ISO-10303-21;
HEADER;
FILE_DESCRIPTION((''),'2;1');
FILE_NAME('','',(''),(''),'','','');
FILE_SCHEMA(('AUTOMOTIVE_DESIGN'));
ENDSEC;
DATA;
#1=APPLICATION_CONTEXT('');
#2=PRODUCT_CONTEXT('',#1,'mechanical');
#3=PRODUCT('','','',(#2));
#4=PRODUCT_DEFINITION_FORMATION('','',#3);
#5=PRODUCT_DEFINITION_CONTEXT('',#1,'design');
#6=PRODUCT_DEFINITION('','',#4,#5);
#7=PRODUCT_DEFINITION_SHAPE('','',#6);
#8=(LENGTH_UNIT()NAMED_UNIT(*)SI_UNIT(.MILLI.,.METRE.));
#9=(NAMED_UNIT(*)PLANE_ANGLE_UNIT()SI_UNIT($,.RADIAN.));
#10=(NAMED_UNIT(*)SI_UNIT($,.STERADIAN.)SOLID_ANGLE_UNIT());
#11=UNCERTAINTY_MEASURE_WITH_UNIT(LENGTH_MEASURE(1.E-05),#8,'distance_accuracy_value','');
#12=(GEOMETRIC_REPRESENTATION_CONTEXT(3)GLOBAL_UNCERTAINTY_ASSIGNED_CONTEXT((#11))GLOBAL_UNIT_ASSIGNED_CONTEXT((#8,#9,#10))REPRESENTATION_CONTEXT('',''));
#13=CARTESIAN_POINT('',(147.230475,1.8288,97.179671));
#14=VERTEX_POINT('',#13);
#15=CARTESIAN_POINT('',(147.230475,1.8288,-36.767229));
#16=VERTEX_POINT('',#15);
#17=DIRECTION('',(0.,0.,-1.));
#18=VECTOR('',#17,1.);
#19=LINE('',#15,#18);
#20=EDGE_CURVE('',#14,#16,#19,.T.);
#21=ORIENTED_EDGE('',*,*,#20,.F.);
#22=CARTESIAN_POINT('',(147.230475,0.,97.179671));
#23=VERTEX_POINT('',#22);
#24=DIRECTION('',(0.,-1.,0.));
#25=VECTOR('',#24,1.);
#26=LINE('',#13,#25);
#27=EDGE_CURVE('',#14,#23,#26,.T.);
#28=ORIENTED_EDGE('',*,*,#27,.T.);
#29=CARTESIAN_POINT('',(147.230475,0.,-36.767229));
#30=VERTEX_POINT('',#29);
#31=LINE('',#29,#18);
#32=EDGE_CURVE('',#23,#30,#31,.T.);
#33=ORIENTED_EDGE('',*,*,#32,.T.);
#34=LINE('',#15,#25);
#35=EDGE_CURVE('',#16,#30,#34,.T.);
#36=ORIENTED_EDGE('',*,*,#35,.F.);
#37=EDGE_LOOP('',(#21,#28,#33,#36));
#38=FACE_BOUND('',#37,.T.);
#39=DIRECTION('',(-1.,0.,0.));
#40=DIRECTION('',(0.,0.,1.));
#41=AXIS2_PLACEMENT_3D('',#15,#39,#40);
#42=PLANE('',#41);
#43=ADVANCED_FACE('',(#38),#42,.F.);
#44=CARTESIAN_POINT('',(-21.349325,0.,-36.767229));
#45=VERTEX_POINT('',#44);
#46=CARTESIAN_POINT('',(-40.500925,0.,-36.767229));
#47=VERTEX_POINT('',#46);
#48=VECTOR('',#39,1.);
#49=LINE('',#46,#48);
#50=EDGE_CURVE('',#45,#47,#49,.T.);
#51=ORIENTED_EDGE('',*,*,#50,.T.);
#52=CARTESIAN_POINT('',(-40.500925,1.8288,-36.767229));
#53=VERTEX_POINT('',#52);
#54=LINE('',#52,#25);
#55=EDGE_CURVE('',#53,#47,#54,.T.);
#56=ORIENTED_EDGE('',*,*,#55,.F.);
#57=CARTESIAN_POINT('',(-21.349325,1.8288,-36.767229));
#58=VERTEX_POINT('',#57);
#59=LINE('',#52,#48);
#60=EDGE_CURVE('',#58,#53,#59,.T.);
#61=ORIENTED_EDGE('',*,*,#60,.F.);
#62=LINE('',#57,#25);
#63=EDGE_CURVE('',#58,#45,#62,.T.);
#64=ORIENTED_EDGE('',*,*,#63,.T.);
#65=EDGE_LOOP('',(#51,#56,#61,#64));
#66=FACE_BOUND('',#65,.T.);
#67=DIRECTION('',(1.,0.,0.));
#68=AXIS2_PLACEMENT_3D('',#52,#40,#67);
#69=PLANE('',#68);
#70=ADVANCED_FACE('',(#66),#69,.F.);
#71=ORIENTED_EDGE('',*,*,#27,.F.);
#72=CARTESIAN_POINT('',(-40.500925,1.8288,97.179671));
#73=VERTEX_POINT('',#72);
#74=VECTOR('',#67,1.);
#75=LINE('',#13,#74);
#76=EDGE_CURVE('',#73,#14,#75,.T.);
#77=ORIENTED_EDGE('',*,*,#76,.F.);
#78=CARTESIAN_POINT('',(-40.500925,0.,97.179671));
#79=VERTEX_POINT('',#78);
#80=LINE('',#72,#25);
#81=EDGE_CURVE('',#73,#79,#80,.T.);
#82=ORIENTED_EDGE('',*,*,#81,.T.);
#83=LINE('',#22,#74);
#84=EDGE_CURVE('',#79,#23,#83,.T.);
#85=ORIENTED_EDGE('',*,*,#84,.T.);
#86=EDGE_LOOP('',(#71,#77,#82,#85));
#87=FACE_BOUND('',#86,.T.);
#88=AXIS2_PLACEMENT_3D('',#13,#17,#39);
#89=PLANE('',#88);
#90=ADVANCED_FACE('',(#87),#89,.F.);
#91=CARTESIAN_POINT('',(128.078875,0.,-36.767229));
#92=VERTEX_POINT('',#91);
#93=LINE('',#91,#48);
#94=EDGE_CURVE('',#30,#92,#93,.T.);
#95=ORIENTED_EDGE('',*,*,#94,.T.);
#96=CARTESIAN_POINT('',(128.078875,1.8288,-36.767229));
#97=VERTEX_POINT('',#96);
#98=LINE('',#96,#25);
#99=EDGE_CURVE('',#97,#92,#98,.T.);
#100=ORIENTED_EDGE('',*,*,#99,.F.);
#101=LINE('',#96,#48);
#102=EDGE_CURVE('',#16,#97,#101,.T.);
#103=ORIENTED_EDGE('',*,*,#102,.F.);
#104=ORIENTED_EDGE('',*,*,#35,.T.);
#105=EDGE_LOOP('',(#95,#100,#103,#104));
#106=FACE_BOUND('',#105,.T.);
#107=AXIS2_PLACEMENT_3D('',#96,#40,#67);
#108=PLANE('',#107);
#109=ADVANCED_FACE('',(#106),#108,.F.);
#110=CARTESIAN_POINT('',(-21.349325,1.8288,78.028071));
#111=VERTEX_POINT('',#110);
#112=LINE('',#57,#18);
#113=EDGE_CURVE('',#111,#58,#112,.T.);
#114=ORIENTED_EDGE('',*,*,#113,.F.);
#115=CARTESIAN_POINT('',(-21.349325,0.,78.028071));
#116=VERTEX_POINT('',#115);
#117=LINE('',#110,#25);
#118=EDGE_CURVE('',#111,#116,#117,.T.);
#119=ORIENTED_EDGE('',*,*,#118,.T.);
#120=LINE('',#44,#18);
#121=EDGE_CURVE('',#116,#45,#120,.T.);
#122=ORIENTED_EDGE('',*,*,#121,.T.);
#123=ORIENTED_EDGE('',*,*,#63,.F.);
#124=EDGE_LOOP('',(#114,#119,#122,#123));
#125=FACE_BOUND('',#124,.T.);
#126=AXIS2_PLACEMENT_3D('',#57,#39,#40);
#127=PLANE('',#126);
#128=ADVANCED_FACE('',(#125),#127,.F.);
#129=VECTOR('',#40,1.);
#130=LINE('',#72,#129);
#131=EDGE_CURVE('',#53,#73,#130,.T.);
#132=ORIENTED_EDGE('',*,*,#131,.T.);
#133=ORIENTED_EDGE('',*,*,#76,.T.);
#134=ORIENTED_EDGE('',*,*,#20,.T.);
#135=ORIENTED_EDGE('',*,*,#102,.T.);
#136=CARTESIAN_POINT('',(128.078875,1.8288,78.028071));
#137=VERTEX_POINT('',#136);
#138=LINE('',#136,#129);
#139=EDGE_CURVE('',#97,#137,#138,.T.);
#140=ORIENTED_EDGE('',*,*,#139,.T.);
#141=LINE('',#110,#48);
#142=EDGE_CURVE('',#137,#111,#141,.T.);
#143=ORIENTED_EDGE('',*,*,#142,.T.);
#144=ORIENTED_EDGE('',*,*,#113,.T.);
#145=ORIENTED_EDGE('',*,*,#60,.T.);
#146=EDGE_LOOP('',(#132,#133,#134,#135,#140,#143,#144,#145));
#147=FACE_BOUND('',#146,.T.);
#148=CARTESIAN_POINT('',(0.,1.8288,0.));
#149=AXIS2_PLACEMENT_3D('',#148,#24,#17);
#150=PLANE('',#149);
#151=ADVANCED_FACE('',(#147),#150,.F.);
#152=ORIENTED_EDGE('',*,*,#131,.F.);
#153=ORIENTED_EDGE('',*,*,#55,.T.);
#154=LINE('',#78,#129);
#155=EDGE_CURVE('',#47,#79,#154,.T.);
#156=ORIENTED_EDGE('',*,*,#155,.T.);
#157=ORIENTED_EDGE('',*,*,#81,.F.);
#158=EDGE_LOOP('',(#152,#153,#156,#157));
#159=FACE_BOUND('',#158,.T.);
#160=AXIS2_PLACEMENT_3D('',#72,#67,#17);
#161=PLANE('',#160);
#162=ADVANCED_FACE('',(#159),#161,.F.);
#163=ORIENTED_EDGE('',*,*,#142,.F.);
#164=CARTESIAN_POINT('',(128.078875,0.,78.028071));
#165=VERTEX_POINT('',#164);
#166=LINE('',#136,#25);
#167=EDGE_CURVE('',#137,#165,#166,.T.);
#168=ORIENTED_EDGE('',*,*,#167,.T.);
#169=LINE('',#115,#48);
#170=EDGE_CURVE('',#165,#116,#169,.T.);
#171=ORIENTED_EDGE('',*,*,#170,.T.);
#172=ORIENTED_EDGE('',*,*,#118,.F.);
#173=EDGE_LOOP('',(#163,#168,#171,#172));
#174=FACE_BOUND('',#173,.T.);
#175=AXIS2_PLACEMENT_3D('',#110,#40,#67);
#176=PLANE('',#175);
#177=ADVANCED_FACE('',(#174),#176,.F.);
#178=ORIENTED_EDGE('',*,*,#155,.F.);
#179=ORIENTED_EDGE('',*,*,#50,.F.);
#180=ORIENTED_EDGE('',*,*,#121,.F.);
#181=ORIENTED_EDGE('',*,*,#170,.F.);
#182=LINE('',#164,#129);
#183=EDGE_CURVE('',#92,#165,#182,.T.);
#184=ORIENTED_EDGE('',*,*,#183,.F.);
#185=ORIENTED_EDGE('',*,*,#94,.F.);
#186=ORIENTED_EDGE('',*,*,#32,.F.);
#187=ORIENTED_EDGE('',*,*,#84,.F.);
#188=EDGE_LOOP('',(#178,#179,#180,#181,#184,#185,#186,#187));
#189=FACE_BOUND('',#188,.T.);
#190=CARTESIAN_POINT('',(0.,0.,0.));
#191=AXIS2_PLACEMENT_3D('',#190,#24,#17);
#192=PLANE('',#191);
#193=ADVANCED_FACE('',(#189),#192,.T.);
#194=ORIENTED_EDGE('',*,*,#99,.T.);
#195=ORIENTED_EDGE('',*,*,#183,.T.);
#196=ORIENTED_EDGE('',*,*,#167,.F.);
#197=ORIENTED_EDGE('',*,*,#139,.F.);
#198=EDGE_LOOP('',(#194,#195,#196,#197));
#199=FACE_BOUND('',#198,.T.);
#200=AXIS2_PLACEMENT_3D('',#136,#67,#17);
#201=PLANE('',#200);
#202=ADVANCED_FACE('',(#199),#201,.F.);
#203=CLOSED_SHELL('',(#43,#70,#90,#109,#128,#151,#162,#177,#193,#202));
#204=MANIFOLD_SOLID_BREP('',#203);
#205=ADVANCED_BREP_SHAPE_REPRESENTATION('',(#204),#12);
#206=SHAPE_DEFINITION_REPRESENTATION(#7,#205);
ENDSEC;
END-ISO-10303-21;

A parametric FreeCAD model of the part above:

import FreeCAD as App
import Part
import Sketcher

V = App.Vector
Q = App.Units.Quantity

doc = App.newDocument("Part")
body = doc.addObject("PartDesign::Body", "Body")

sketch1 = body.newObject("Sketcher::SketchObject", "Sketch")
sketch1.AttachmentSupport = (doc.getObject("XZ_Plane"), [""])
sketch1.MapMode = "FlatFace"
sketch1.addGeometry(Part.LineSegment(V(-21.349325, -36.767229, 0), V(-40.500925, -36.767229, 0)), False)
sketch1.addGeometry(Part.LineSegment(V(-40.500925, -36.767229, 0), V(-40.500925, 97.179671, 0)), False)
sketch1.addGeometry(Part.LineSegment(V(-40.500925, 97.179671, 0), V(147.230475, 97.179671, 0)), False)
sketch1.addGeometry(Part.LineSegment(V(147.230475, 97.179671, 0), V(147.230475, -36.767229, 0)), False)
sketch1.addGeometry(Part.LineSegment(V(147.230475, -36.767229, 0), V(128.078875, -36.767229, 0)), False)
sketch1.addGeometry(Part.LineSegment(V(128.078875, -36.767229, 0), V(128.078875, 78.028071, 0)), False)
sketch1.addGeometry(Part.LineSegment(V(128.078875, 78.028071, 0), V(-21.349325, 78.028071, 0)), False)
sketch1.addGeometry(Part.LineSegment(V(-21.349325, 78.028071, 0), V(-21.349325, -36.767229, 0)), False)
sketch1.addConstraint(Sketcher.Constraint("Coincident", 0, 2, 1, 1))
sketch1.addConstraint(Sketcher.Constraint("Coincident", 1, 2, 2, 1))
sketch1.addConstraint(Sketcher.Constraint("Coincident", 2, 2, 3, 1))
sketch1.addConstraint(Sketcher.Constraint("Coincident", 3, 2, 4, 1))
sketch1.addConstraint(Sketcher.Constraint("Coincident", 4, 2, 5, 1))
sketch1.addConstraint(Sketcher.Constraint("Coincident", 5, 2, 6, 1))
sketch1.addConstraint(Sketcher.Constraint("Coincident", 6, 2, 7, 1))
sketch1.addConstraint(Sketcher.Constraint("Coincident", 7, 2, 0, 1))
sketch1.addConstraint(Sketcher.Constraint("Horizontal", 0))
sketch1.addConstraint(Sketcher.Constraint("Vertical", 1))
sketch1.addConstraint(Sketcher.Constraint("Horizontal", 2))
sketch1.addConstraint(Sketcher.Constraint("Vertical", 3))
sketch1.addConstraint(Sketcher.Constraint("Horizontal", 4))
sketch1.addConstraint(Sketcher.Constraint("Vertical", 5))
sketch1.addConstraint(Sketcher.Constraint("Horizontal", 6))
sketch1.addConstraint(Sketcher.Constraint("Vertical", 7))
sketch1.addConstraint(Sketcher.Constraint("Horizontal", 0, 2, 3, 2))
sketch1.addConstraint(Sketcher.Constraint("Equal", 0, 4))
sketch1.addConstraint(Sketcher.Constraint("DistanceX", 0, 2, 0, 1, Q("0.754 in")))
sketch1.addConstraint(Sketcher.Constraint("DistanceX", 2, 1, 2, 2, Q("7.391 in")))
sketch1.addConstraint(Sketcher.Constraint("DistanceY", 1, 1, 1, 2, Q("5.2735 in")))
sketch1.addConstraint(Sketcher.Constraint("DistanceY", 5, 1, 5, 2, Q("4.5195 in")))
sketch1.addConstraint(Sketcher.Constraint("DistanceY", 0, 2, -1, 1, 36.767229))
sketch1.addConstraint(Sketcher.Constraint("DistanceX", 0, 2, -1, 1, 40.500925))
pad1 = body.newObject("PartDesign::Pad", "Pad")
pad1.Profile = sketch1
pad1.Length = Q("0.072 in")
pad1.Reversed = True

doc.recompute()
